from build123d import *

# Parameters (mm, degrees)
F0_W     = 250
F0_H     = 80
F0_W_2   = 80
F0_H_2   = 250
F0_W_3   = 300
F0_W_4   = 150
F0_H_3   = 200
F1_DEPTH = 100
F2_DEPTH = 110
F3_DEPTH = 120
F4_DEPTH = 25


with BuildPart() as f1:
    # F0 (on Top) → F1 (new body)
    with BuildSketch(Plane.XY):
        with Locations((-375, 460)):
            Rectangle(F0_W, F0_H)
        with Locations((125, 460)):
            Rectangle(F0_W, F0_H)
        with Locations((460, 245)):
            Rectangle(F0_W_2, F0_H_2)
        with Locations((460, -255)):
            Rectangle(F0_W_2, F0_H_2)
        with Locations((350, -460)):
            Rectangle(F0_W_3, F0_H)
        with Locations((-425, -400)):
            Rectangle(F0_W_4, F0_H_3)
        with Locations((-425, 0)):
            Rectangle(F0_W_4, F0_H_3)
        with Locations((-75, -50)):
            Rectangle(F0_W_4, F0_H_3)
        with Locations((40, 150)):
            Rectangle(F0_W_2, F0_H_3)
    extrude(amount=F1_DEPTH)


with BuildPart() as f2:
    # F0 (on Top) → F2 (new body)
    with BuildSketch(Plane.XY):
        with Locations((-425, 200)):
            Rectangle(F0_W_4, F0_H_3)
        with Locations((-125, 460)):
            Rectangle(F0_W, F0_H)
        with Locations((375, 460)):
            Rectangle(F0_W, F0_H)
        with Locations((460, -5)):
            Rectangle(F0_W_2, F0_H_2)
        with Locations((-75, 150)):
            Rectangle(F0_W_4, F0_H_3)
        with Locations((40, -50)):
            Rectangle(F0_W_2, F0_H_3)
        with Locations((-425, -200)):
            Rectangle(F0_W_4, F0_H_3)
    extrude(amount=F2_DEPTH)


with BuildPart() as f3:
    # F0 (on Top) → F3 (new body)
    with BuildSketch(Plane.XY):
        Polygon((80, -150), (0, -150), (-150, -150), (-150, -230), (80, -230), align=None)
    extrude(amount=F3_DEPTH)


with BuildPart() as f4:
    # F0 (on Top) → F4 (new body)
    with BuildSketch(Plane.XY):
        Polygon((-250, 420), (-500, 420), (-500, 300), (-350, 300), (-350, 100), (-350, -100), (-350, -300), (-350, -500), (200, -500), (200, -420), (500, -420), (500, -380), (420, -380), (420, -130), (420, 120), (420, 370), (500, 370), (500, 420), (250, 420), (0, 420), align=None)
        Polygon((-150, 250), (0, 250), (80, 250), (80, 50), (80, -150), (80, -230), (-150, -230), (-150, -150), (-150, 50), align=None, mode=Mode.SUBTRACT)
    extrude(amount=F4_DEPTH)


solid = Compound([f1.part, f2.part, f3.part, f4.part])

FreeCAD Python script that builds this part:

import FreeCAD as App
import Part
import Sketcher
from FreeCAD import Vector

doc = App.newDocument("Part")
body = doc.addObject("PartDesign::Body", "Body")
body.AllowCompound = True

sketch1 = doc.addObject("Sketcher::SketchObject", "Sketch")
body.addObject(sketch1)
sketch1.AttachmentSupport = (doc.XY_Plane, [""])
sketch1.MapMode = "FlatFace"
sketch1.addGeometry([
    Part.LineSegment(Vector(-500, 500, 0), Vector(-500, 420, 0)),
    Part.LineSegment(Vector(-500, 420, 0), Vector(-250, 420, 0)),
    Part.LineSegment(Vector(-250, 420, 0), Vector(-250, 500, 0)),
    Part.LineSegment(Vector(-250, 500, 0), Vector(-500, 500, 0)),
    Part.LineSegment(Vector(0, 500, 0), Vector(0, 420, 0)),
    Part.LineSegment(Vector(0, 420, 0), Vector(250, 420, 0)),
    Part.LineSegment(Vector(250, 420, 0), Vector(250, 500, 0)),
    Part.LineSegment(Vector(250, 500, 0), Vector(0, 500, 0)),
    Part.LineSegment(Vector(420, 370, 0), Vector(420, 120, 0)),
    Part.LineSegment(Vector(420, 120, 0), Vector(500, 120, 0)),
    Part.LineSegment(Vector(500, 120, 0), Vector(500, 370, 0)),
    Part.LineSegment(Vector(500, 370, 0), Vector(420, 370, 0)),
    Part.LineSegment(Vector(420, -130, 0), Vector(420, -380, 0)),
    Part.LineSegment(Vector(420, -380, 0), Vector(500, -380, 0)),
    Part.LineSegment(Vector(500, -380, 0), Vector(500, -130, 0)),
    Part.LineSegment(Vector(500, -130, 0), Vector(420, -130, 0)),
    Part.LineSegment(Vector(200, -420, 0), Vector(200, -500, 0)),
    Part.LineSegment(Vector(200, -500, 0), Vector(500, -500, 0)),
    Part.LineSegment(Vector(500, -500, 0), Vector(500, -420, 0)),
    Part.LineSegment(Vector(500, -420, 0), Vector(200, -420, 0)),
    Part.LineSegment(Vector(-500, -300, 0), Vector(-500, -500, 0)),
    Part.LineSegment(Vector(-500, -500, 0), Vector(-350, -500, 0)),
    Part.LineSegment(Vector(-350, -500, 0), Vector(-350, -300, 0)),
    Part.LineSegment(Vector(-350, -300, 0), Vector(-500, -300, 0)),
    Part.LineSegment(Vector(-500, 100, 0), Vector(-500, -100, 0)),
    Part.LineSegment(Vector(-500, -100, 0), Vector(-350, -100, 0)),
    Part.LineSegment(Vector(-350, -100, 0), Vector(-350, 100, 0)),
    Part.LineSegment(Vector(-350, 100, 0), Vector(-500, 100, 0)),
    Part.LineSegment(Vector(-150, 50, 0), Vector(-150, -150, 0)),
    Part.LineSegment(Vector(-150, -150, 0), Vector(0, -150, 0)),
    Part.LineSegment(Vector(0, -150, 0), Vector(0, 50, 0)),
    Part.LineSegment(Vector(0, 50, 0), Vector(-150, 50, 0)),
    Part.LineSegment(Vector(0, 250, 0), Vector(0, 50, 0)),
    Part.LineSegment(Vector(0, 50, 0), Vector(80, 50, 0)),
    Part.LineSegment(Vector(80, 50, 0), Vector(80, 250, 0)),
    Part.LineSegment(Vector(80, 250, 0), Vector(0, 250, 0)),
], False)
sketch1.addConstraint([
    Sketcher.Constraint("Coincident", 0, 2, 1, 1),
    Sketcher.Constraint("Coincident", 1, 2, 2, 1),
    Sketcher.Constraint("Coincident", 2, 2, 3, 1),
    Sketcher.Constraint("Coincident", 3, 2, 0, 1),
    Sketcher.Constraint("Coincident", 4, 2, 5, 1),
    Sketcher.Constraint("Coincident", 5, 2, 6, 1),
    Sketcher.Constraint("Coincident", 6, 2, 7, 1),
    Sketcher.Constraint("Coincident", 7, 2, 4, 1),
    Sketcher.Constraint("Coincident", 8, 2, 9, 1),
    Sketcher.Constraint("Coincident", 9, 2, 10, 1),
    Sketcher.Constraint("Coincident", 10, 2, 11, 1),
    Sketcher.Constraint("Coincident", 11, 2, 8, 1),
    Sketcher.Constraint("Coincident", 12, 2, 13, 1),
    Sketcher.Constraint("Coincident", 13, 2, 14, 1),
    Sketcher.Constraint("Coincident", 14, 2, 15, 1),
    Sketcher.Constraint("Coincident", 15, 2, 12, 1),
    Sketcher.Constraint("Coincident", 16, 2, 17, 1),
    Sketcher.Constraint("Coincident", 17, 2, 18, 1),
    Sketcher.Constraint("Coincident", 18, 2, 19, 1),
    Sketcher.Constraint("Coincident", 19, 2, 16, 1),
    Sketcher.Constraint("Coincident", 20, 2, 21, 1),
    Sketcher.Constraint("Coincident", 21, 2, 22, 1),
    Sketcher.Constraint("Coincident", 22, 2, 23, 1),
    Sketcher.Constraint("Coincident", 23, 2, 20, 1),
    Sketcher.Constraint("Coincident", 24, 2, 25, 1),
    Sketcher.Constraint("Coincident", 25, 2, 26, 1),
    Sketcher.Constraint("Coincident", 26, 2, 27, 1),
    Sketcher.Constraint("Coincident", 27, 2, 24, 1),
    Sketcher.Constraint("Coincident", 28, 2, 29, 1),
    Sketcher.Constraint("Coincident", 29, 2, 30, 1),
    Sketcher.Constraint("Coincident", 30, 2, 31, 1),
    Sketcher.Constraint("Coincident", 31, 2, 28, 1),
    Sketcher.Constraint("Coincident", 32, 2, 33, 1),
    Sketcher.Constraint("Coincident", 33, 2, 34, 1),
    Sketcher.Constraint("Coincident", 34, 2, 35, 1),
    Sketcher.Constraint("Coincident", 35, 2, 32, 1),
    Sketcher.Constraint("Vertical", 0),
    Sketcher.Constraint("Horizontal", 1),
    Sketcher.Constraint("Vertical", 2),
    Sketcher.Constraint("Horizontal", 3),
    Sketcher.Constraint("Vertical", 4),
    Sketcher.Constraint("Horizontal", 5),
    Sketcher.Constraint("Vertical", 6),
    Sketcher.Constraint("Horizontal", 7),
    Sketcher.Constraint("Vertical", 8),
    Sketcher.Constraint("Horizontal", 9),
    Sketcher.Constraint("Vertical", 10),
    Sketcher.Constraint("Horizontal", 11),
    Sketcher.Constraint("Vertical", 12),
    Sketcher.Constraint("Horizontal", 13),
    Sketcher.Constraint("Vertical", 14),
    Sketcher.Constraint("Horizontal", 15),
    Sketcher.Constraint("Vertical", 16),
    Sketcher.Constraint("Horizontal", 17),
    Sketcher.Constraint("Vertical", 18),
    Sketcher.Constraint("Horizontal", 19),
    Sketcher.Constraint("Vertical", 20),
    Sketcher.Constraint("Horizontal", 21),
    Sketcher.Constraint("Vertical", 22),
    Sketcher.Constraint("Horizontal", 23),
    Sketcher.Constraint("Vertical", 24),
    Sketcher.Constraint("Horizontal", 25),
    Sketcher.Constraint("Vertical", 26),
    Sketcher.Constraint("Horizontal", 27),
    Sketcher.Constraint("Vertical", 28),
    Sketcher.Constraint("Horizontal", 29),
    Sketcher.Constraint("Vertical", 30),
    Sketcher.Constraint("Horizontal", 31),
    Sketcher.Constraint("Vertical", 32),
    Sketcher.Constraint("Horizontal", 33),
    Sketcher.Constraint("Vertical", 34),
    Sketcher.Constraint("Horizontal", 35),
    Sketcher.Constraint("Coincident", 32, 2, 30, 2),
    Sketcher.Constraint("Symmetric", 3, 2, 17, 2, -1, 1),
    Sketcher.Constraint("Symmetric", 1, 2, 5, 2, -2),
    Sketcher.Constraint("Symmetric", 17, 2, 20, 2, -2),
    Sketcher.Constraint("PointOnObject", 4, 2, -2),
    Sketcher.Constraint("PointOnObject", 29, 2, -2),
    Sketcher.Constraint("Horizontal", 3, 2, 6, 2),
    Sketcher.Constraint("Vertical", 11, 2, 12, 2),
    Sketcher.Constraint("Vertical", 10, 2, 13, 2),
    Sketcher.Constraint("Vertical", 14, 2, 17, 2),
    Sketcher.Constraint("Vertical", 23, 2, 24, 2),
    Sketcher.Constraint("Vertical", 22, 2, 25, 2),
    Sketcher.Constraint("Equal", 3, 5),
    Sketcher.Constraint("Equal", 27, 29),
    Sketcher.Constraint("Equal", 15, 33),
    Sketcher.Constraint("Equal", 35, 0),
    Sketcher.Constraint("Equal", 7, 8),
    Sketcher.Constraint("Equal", 10, 12),
    Sketcher.Constraint("Equal", 6, 16),
    Sketcher.Constraint("Equal", 22, 24),
    Sketcher.Constraint("Equal", 26, 28),
    Sketcher.Constraint("Equal", 30, 32),
    Sketcher.Constraint("DistanceX", 1, 1, 1, 2, 250.0),
    Sketcher.Constraint("DistanceX", 9, 1, 9, 2, 80.0),
    Sketcher.Constraint("DistanceX", 17, 1, 17, 2, 300.0),
    Sketcher.Constraint("DistanceX", 21, 1, 21, 2, 150.0),
    Sketcher.Constraint("DistanceY", 20, 2, 20, 1, 200.0),
    Sketcher.Constraint("DistanceY", -1, 1, 0, 2, 420.0),
    Sketcher.Constraint("DistanceY", -1, 1, 8, 2, 120.0),
    Sketcher.Constraint("DistanceY", 12, 2, -1, 1, 380.0),
    Sketcher.Constraint("DistanceY", 24, 2, -1, 1, 100.0),
    Sketcher.Constraint("DistanceY", 28, 2, -1, 1, 150.0),
])
pad1 = doc.addObject("PartDesign::Pad", "Pad")
body.addObject(pad1)
pad1.Profile = sketch1
pad1.Length = 100
body2 = doc.addObject("PartDesign::Body", "Body001")
body2.AllowCompound = True

sketch2 = doc.addObject("Sketcher::SketchObject", "Sketch001")
body2.addObject(sketch2)
sketch2.AttachmentSupport = (doc.getObject("XY_Plane001"), [""])
sketch2.MapMode = "FlatFace"
sketch2.addGeometry([
    Part.LineSegment(Vector(-500, 300, 0), Vector(-500, 100, 0)),
    Part.LineSegment(Vector(-500, 100, 0), Vector(-350, 100, 0)),
    Part.LineSegment(Vector(-350, 100, 0), Vector(-350, 300, 0)),
    Part.LineSegment(Vector(-350, 300, 0), Vector(-500, 300, 0)),
    Part.LineSegment(Vector(-250, 500, 0), Vector(-250, 420, 0)),
    Part.LineSegment(Vector(-250, 420, 0), Vector(0, 420, 0)),
    Part.LineSegment(Vector(0, 420, 0), Vector(0, 500, 0)),
    Part.LineSegment(Vector(0, 500, 0), Vector(-250, 500, 0)),
    Part.LineSegment(Vector(250, 500, 0), Vector(250, 420, 0)),
    Part.LineSegment(Vector(250, 420, 0), Vector(500, 420, 0)),
    Part.LineSegment(Vector(500, 420, 0), Vector(500, 500, 0)),
    Part.LineSegment(Vector(500, 500, 0), Vector(250, 500, 0)),
    Part.LineSegment(Vector(420, 120, 0), Vector(420, -130, 0)),
    Part.LineSegment(Vector(420, -130, 0), Vector(500, -130, 0)),
    Part.LineSegment(Vector(500, -130, 0), Vector(500, 120, 0)),
    Part.LineSegment(Vector(500, 120, 0), Vector(420, 120, 0)),
    Part.LineSegment(Vector(-150, 250, 0), Vector(-150, 50, 0)),
    Part.LineSegment(Vector(-150, 50, 0), Vector(0, 50, 0)),
    Part.LineSegment(Vector(0, 50, 0), Vector(0, 250, 0)),
    Part.LineSegment(Vector(0, 250, 0), Vector(-150, 250, 0)),
    Part.LineSegment(Vector(0, 50, 0), Vector(0, -150, 0)),
    Part.LineSegment(Vector(0, -150, 0), Vector(80, -150, 0)),
    Part.LineSegment(Vector(80, -150, 0), Vector(80, 50, 0)),
    Part.LineSegment(Vector(80, 50, 0), Vector(0, 50, 0)),
    Part.LineSegment(Vector(-500, -100, 0), Vector(-500, -300, 0)),
    Part.LineSegment(Vector(-500, -300, 0), Vector(-350, -300, 0)),
    Part.LineSegment(Vector(-350, -300, 0), Vector(-350, -100, 0)),
    Part.LineSegment(Vector(-350, -100, 0), Vector(-500, -100, 0)),
], False)
sketch2.addConstraint([
    Sketcher.Constraint("Coincident", 0, 2, 1, 1),
    Sketcher.Constraint("Coincident", 1, 2, 2, 1),
    Sketcher.Constraint("Coincident", 2, 2, 3, 1),
    Sketcher.Constraint("Coincident", 3, 2, 0, 1),
    Sketcher.Constraint("Coincident", 4, 2, 5, 1),
    Sketcher.Constraint("Coincident", 5, 2, 6, 1),
    Sketcher.Constraint("Coincident", 6, 2, 7, 1),
    Sketcher.Constraint("Coincident", 7, 2, 4, 1),
    Sketcher.Constraint("Coincident", 8, 2, 9, 1),
    Sketcher.Constraint("Coincident", 9, 2, 10, 1),
    Sketcher.Constraint("Coincident", 10, 2, 11, 1),
    Sketcher.Constraint("Coincident", 11, 2, 8, 1),
    Sketcher.Constraint("Coincident", 12, 2, 13, 1),
    Sketcher.Constraint("Coincident", 13, 2, 14, 1),
    Sketcher.Constraint("Coincident", 14, 2, 15, 1),
    Sketcher.Constraint("Coincident", 15, 2, 12, 1),
    Sketcher.Constraint("Coincident", 16, 2, 17, 1),
    Sketcher.Constraint("Coincident", 17, 2, 18, 1),
    Sketcher.Constraint("Coincident", 18, 2, 19, 1),
    Sketcher.Constraint("Coincident", 19, 2, 16, 1),
    Sketcher.Constraint("Coincident", 20, 2, 21, 1),
    Sketcher.Constraint("Coincident", 21, 2, 22, 1),
    Sketcher.Constraint("Coincident", 22, 2, 23, 1),
    Sketcher.Constraint("Coincident", 23, 2, 20, 1),
    Sketcher.Constraint("Coincident", 24, 2, 25, 1),
    Sketcher.Constraint("Coincident", 25, 2, 26, 1),
    Sketcher.Constraint("Coincident", 26, 2, 27, 1),
    Sketcher.Constraint("Coincident", 27, 2, 24, 1),
    Sketcher.Constraint("Vertical", 0),
    Sketcher.Constraint("Horizontal", 1),
    Sketcher.Constraint("Vertical", 2),
    Sketcher.Constraint("Horizontal", 3),
    Sketcher.Constraint("Vertical", 4),
    Sketcher.Constraint("Horizontal", 5),
    Sketcher.Constraint("Vertical", 6),
    Sketcher.Constraint("Horizontal", 7),
    Sketcher.Constraint("Vertical", 8),
    Sketcher.Constraint("Horizontal", 9),
    Sketcher.Constraint("Vertical", 10),
    Sketcher.Constraint("Horizontal", 11),
    Sketcher.Constraint("Vertical", 12),
    Sketcher.Constraint("Horizontal", 13),
    Sketcher.Constraint("Vertical", 14),
    Sketcher.Constraint("Horizontal", 15),
    Sketcher.Constraint("Vertical", 16),
    Sketcher.Constraint("Horizontal", 17),
    Sketcher.Constraint("Vertical", 18),
    Sketcher.Constraint("Horizontal", 19),
    Sketcher.Constraint("Vertical", 20),
    Sketcher.Constraint("Horizontal", 21),
    Sketcher.Constraint("Vertical", 22),
    Sketcher.Constraint("Horizontal", 23),
    Sketcher.Constraint("Vertical", 24),
    Sketcher.Constraint("Horizontal", 25),
    Sketcher.Constraint("Vertical", 26),
    Sketcher.Constraint("Horizontal", 27),
    Sketcher.Constraint("Coincident", 23, 2, 17, 2),
    Sketcher.Constraint("Symmetric", 4, 2, 8, 2, -2),
    Sketcher.Constraint("Symmetric", 3, 2, 24, 2, -1),
    Sketcher.Constraint("Symmetric", 1, 2, 26, 2, -1),
    Sketcher.Constraint("PointOnObject", 5, 2, -2),
    Sketcher.Constraint("PointOnObject", 17, 2, -2),
    Sketcher.Constraint("Horizontal", 7, 2, 10, 2),
    Sketcher.Constraint("Vertical", 10, 2, 13, 2),
    Sketcher.Constraint("Equal", 7, 9),
    Sketcher.Constraint("Equal", 3, 17),
    Sketcher.Constraint("Equal", 15, 21),
    Sketcher.Constraint("Equal", 23, 4),
    Sketcher.Constraint("Equal", 11, 12),
    Sketcher.Constraint("Equal", 2, 16),
    Sketcher.Constraint("Equal", 18, 20),
    Sketcher.Constraint("DistanceX", 1, 1, 1, 2, 150.0),
    Sketcher.Constraint("DistanceX", 5, 1, 5, 2, 250.0),
    Sketcher.Constraint("DistanceX", 13, 1, 13, 2, 80.0),
    Sketcher.Constraint("DistanceY", 0, 2, 0, 1, 200.0),
    Sketcher.Constraint("DistanceX", 0, 2, -1, 1, 500.0),
    Sketcher.Constraint("DistanceY", -1, 1, 0, 2, 100.0),
    Sketcher.Constraint("DistanceY", -1, 1, 4, 2, 420.0),
    Sketcher.Constraint("DistanceY", 12, 2, -1, 1, 130.0),
    Sketcher.Constraint("DistanceY", -1, 1, 16, 2, 50.0),
])
pad2 = doc.addObject("PartDesign::Pad", "Pad001")
body2.addObject(pad2)
pad2.Profile = sketch2
pad2.Length = 110
body3 = doc.addObject("PartDesign::Body", "Body002")

sketch3 = doc.addObject("Sketcher::SketchObject", "Sketch002")
body3.addObject(sketch3)
sketch3.AttachmentSupport = (doc.getObject("XY_Plane002"), [""])
sketch3.MapMode = "FlatFace"
sketch3.addGeometry([
    Part.LineSegment(Vector(80, -150, 0), Vector(-150, -150, 0)),
    Part.LineSegment(Vector(-150, -150, 0), Vector(-150, -230, 0)),
    Part.LineSegment(Vector(-150, -230, 0), Vector(80, -230, 0)),
    Part.LineSegment(Vector(80, -230, 0), Vector(80, -150, 0)),
], False)
sketch3.addConstraint([
    Sketcher.Constraint("Coincident", 0, 2, 1, 1),
    Sketcher.Constraint("Coincident", 1, 2, 2, 1),
    Sketcher.Constraint("Coincident", 2, 2, 3, 1),
    Sketcher.Constraint("Coincident", 3, 2, 0, 1),
    Sketcher.Constraint("Horizontal", 0),
    Sketcher.Constraint("Vertical", 1),
    Sketcher.Constraint("Horizontal", 2),
    Sketcher.Constraint("Vertical", 3),
    Sketcher.Constraint("DistanceX", 0, 2, 0, 1, 230.0),
    Sketcher.Constraint("DistanceY", 1, 2, 1, 1, 80.0),
    Sketcher.Constraint("DistanceX", 0, 2, -1, 1, 150.0),
    Sketcher.Constraint("DistanceY", 0, 2, -1, 1, 150.0),
])
pad3 = doc.addObject("PartDesign::Pad", "Pad002")
body3.addObject(pad3)
pad3.Profile = sketch3
pad3.Length = 120
body4 = doc.addObject("PartDesign::Body", "Body003")

sketch4 = doc.addObject("Sketcher::SketchObject", "Sketch003")
body4.addObject(sketch4)
sketch4.AttachmentSupport = (doc.getObject("XY_Plane003"), [""])
sketch4.MapMode = "FlatFace"
sketch4.addGeometry([
    Part.LineSegment(Vector(-500, 420, 0), Vector(-500, 300, 0)),
    Part.LineSegment(Vector(-500, 300, 0), Vector(-350, 300, 0)),
    Part.LineSegment(Vector(-350, 300, 0), Vector(-350, -500, 0)),
    Part.LineSegment(Vector(-350, -500, 0), Vector(200, -500, 0)),
    Part.LineSegment(Vector(200, -500, 0), Vector(200, -420, 0)),
    Part.LineSegment(Vector(200, -420, 0), Vector(500, -420, 0)),
    Part.LineSegment(Vector(500, -420, 0), Vector(500, -380, 0)),
    Part.LineSegment(Vector(500, -380, 0), Vector(420, -380, 0)),
    Part.LineSegment(Vector(420, -380, 0), Vector(420, 370, 0)),
    Part.LineSegment(Vector(420, 370, 0), Vector(500, 370, 0)),
    Part.LineSegment(Vector(500, 370, 0), Vector(500, 420, 0)),
    Part.LineSegment(Vector(500, 420, 0), Vector(-500, 420, 0)),
    Part.LineSegment(Vector(-150, -230, 0), Vector(-150, 250, 0)),
    Part.LineSegment(Vector(-150, 250, 0), Vector(80, 250, 0)),
    Part.LineSegment(Vector(80, 250, 0), Vector(80, -230, 0)),
    Part.LineSegment(Vector(80, -230, 0), Vector(-150, -230, 0)),
], False)
sketch4.addConstraint([
    Sketcher.Constraint("Coincident", 0, 2, 1, 1),
    Sketcher.Constraint("Coincident", 1, 2, 2, 1),
    Sketcher.Constraint("Coincident", 2, 2, 3, 1),
    Sketcher.Constraint("Coincident", 3, 2, 4, 1),
    Sketcher.Constraint("Coincident", 4, 2, 5, 1),
    Sketcher.Constraint("Coincident", 5, 2, 6, 1),
    Sketcher.Constraint("Coincident", 6, 2, 7, 1),
    Sketcher.Constraint("Coincident", 7, 2, 8, 1),
    Sketcher.Constraint("Coincident", 8, 2, 9, 1),
    Sketcher.Constraint("Coincident", 9, 2, 10, 1),
    Sketcher.Constraint("Coincident", 10, 2, 11, 1),
    Sketcher.Constraint("Coincident", 11, 2, 0, 1),
    Sketcher.Constraint("Coincident", 12, 2, 13, 1),
    Sketcher.Constraint("Coincident", 13, 2, 14, 1),
    Sketcher.Constraint("Coincident", 14, 2, 15, 1),
    Sketcher.Constraint("Coincident", 15, 2, 12, 1),
    Sketcher.Constraint("Vertical", 0),
    Sketcher.Constraint("Horizontal", 1),
    Sketcher.Constraint("Vertical", 2),
    Sketcher.Constraint("Horizontal", 3),
    Sketcher.Constraint("Vertical", 4),
    Sketcher.Constraint("Horizontal", 5),
    Sketcher.Constraint("Vertical", 6),
    Sketcher.Constraint("Horizontal", 7),
    Sketcher.Constraint("Vertical", 8),
    Sketcher.Constraint("Horizontal", 9),
    Sketcher.Constraint("Vertical", 10),
    Sketcher.Constraint("Horizontal", 11),
    Sketcher.Constraint("Vertical", 12),
    Sketcher.Constraint("Horizontal", 13),
    Sketcher.Constraint("Vertical", 14),
    Sketcher.Constraint("Horizontal", 15),
    Sketcher.Constraint("Symmetric", 5, 2, 11, 2, -1, 1),
    Sketcher.Constraint("Vertical", 6, 2, 9, 2),
    Sketcher.Constraint("Equal", 9, 4),
    Sketcher.Constraint("DistanceX", 1, 1, 1, 2, 150.0),
    Sketcher.Constraint("DistanceX", 3, 1, 3, 2, 550.0),
    Sketcher.Constraint("DistanceX", 5, 1, 5, 2, 300.0),
    Sketcher.Constraint("DistanceX", 7, 2, 7, 1, 80.0),
    Sketcher.Constraint("DistanceX", 13, 1, 13, 2, 230.0),
    Sketcher.Constraint("DistanceY", 0, 2, 0, 1, 120.0),
    Sketcher.Constraint("DistanceY", 2, 2, 2, 1, 800.0),
    Sketcher.Constraint("DistanceY", 6, 1, 6, 2, 40.0),
    Sketcher.Constraint("DistanceY", 8, 1, 8, 2, 750.0),
    Sketcher.Constraint("DistanceY", 12, 1, 12, 2, 480.0),
    Sketcher.Constraint("DistanceX", 12, 2, -1, 1, 150.0),
    Sketcher.Constraint("DistanceY", -1, 1, 12, 2, 250.0),
])
pad4 = doc.addObject("PartDesign::Pad", "Pad003")
body4.addObject(pad4)
pad4.Profile = sketch4
pad4.Length = 25

doc.recompute()
